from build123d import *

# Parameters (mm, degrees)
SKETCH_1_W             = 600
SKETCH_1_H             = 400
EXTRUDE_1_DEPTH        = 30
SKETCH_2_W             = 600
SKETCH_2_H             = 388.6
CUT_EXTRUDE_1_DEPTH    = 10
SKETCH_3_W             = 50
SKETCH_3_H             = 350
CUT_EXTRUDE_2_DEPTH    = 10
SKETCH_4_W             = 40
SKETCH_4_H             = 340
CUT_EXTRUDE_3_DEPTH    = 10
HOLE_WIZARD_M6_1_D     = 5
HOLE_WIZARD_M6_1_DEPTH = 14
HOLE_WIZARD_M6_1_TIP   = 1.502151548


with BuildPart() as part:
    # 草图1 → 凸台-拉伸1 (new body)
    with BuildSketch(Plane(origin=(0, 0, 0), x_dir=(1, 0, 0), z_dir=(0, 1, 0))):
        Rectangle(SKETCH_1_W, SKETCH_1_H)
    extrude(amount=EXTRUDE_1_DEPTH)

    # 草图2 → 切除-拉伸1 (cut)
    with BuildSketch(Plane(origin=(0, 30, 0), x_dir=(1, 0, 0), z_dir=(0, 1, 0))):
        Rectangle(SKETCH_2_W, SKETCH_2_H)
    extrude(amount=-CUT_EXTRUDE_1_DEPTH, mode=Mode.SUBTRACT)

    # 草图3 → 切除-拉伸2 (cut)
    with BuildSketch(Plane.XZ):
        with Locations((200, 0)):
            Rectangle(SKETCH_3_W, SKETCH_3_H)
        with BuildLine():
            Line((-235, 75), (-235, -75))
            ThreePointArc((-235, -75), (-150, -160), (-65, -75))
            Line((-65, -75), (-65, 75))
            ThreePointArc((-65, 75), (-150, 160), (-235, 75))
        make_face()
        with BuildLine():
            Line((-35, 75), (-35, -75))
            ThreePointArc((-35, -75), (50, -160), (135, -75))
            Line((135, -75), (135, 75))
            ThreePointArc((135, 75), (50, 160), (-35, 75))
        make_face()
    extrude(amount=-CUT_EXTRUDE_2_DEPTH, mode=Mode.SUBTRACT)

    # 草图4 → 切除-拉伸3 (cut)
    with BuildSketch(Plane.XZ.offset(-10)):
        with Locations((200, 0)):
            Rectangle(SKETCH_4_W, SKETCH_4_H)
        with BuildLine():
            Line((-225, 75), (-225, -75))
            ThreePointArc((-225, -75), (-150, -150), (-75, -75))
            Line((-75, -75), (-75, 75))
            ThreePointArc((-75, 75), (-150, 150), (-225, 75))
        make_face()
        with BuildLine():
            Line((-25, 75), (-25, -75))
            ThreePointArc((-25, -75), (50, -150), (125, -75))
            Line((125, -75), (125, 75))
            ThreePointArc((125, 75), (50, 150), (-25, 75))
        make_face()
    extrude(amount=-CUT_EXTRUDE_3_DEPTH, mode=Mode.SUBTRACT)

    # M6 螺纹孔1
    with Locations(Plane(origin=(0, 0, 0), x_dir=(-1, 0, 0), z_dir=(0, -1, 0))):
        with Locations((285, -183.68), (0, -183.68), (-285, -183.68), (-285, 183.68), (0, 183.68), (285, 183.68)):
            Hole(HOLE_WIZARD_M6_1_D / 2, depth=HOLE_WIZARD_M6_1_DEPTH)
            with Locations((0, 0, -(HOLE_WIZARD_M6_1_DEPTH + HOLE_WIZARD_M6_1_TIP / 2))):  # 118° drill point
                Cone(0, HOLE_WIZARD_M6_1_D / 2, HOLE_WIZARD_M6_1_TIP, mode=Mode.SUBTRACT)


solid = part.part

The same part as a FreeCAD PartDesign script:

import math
import FreeCAD as App
import Part
import Sketcher

V = App.Vector
Q = App.Units.Quantity


def add_polygon(sketch, points):
    """Adds a closed chain of lines whose ends are joined by coincident constraints."""
    first, n = sketch.GeometryCount, len(points)
    for a, b in zip(points, points[1:] + points[:1]):
        sketch.addGeometry(Part.LineSegment(App.Vector(*a, 0), App.Vector(*b, 0)), False)
    for i in range(n):
        sketch.addConstraint(Sketcher.Constraint("Coincident", first + i, 2, first + (i + 1) % n, 1))

doc = App.newDocument("Part")
body = doc.addObject("PartDesign::Body", "Body")

sketch1 = body.newObject("Sketcher::SketchObject", "Sketch")
sketch1.AttachmentSupport = (doc.getObject("XZ_Plane"), [""])
sketch1.MapMode = "FlatFace"
add_polygon(sketch1, [(-300, -200), (-300, 200), (300, 200), (300, -200)])
sketch1.addConstraint([
    Sketcher.Constraint("Vertical", 0),
    Sketcher.Constraint("Horizontal", 1),
    Sketcher.Constraint("Vertical", 2),
    Sketcher.Constraint("Horizontal", 3),
    Sketcher.Constraint("Symmetric", 0, 2, 2, 2, -1, 1),
    Sketcher.Constraint("DistanceX", 1, 1, 1, 2, Q("600 mm")),
    Sketcher.Constraint("DistanceY", 0, 1, 0, 2, Q("400 mm")),
])
pad1 = body.newObject("PartDesign::Pad", "Pad")
pad1.Profile = sketch1
pad1.Length = 30
pad1.Reversed = True

sketch2 = body.newObject("Sketcher::SketchObject", "Sketch001")
sketch2.AttachmentSupport = (doc.getObject("XZ_Plane"), [""])
sketch2.MapMode = "FlatFace"
sketch2.AttachmentOffset = App.Placement(V(0, 0, -30), App.Rotation())
add_polygon(sketch2, [(-300, -194), (-300, 194), (300, 194), (300, -194)])
sketch2.addConstraint([
    Sketcher.Constraint("Vertical", 0),
    Sketcher.Constraint("Horizontal", 1),
    Sketcher.Constraint("Vertical", 2),
    Sketcher.Constraint("Horizontal", 3),
    Sketcher.Constraint("Symmetric", 0, 2, 2, 2, -1, 1),
    Sketcher.Constraint("DistanceX", 1, 1, 1, 2, Q("600 mm")),
    Sketcher.Constraint("DistanceY", 0, 1, 0, 2, Q("388.6 mm")),
])
pocket1 = body.newObject("PartDesign::Pocket", "Pocket")
pocket1.Profile = sketch2
pocket1.Length = 10
pocket1.Reversed = True

sketch3 = body.newObject("Sketcher::SketchObject", "Sketch002")
sketch3.AttachmentSupport = (doc.getObject("XZ_Plane"), [""])
sketch3.MapMode = "FlatFace"
add_polygon(sketch3, [(175, 175), (175, -175), (225, -175), (225, 175)])
sketch3.addGeometry(Part.LineSegment(V(-235, 75, 0), V(-235, -75, 0)), False)
sketch3.addGeometry(Part.ArcOfCircle(Part.Circle(V(-150, -75, 0), V(0, 0, 1), 85), math.radians(180), math.radians(360)), False)
sketch3.addGeometry(Part.LineSegment(V(-65, -75, 0), V(-65, 75, 0)), False)
sketch3.addGeometry(Part.ArcOfCircle(Part.Circle(V(-150, 75, 0), V(0, 0, 1), 85), math.radians(0), math.radians(180)), False)
sketch3.addGeometry(Part.LineSegment(V(-35, 75, 0), V(-35, -75, 0)), False)
sketch3.addGeometry(Part.ArcOfCircle(Part.Circle(V(50, -75, 0), V(0, 0, 1), 85), math.radians(180), math.radians(360)), False)
sketch3.addGeometry(Part.LineSegment(V(135, -75, 0), V(135, 75, 0)), False)
sketch3.addGeometry(Part.ArcOfCircle(Part.Circle(V(50, 75, 0), V(0, 0, 1), 85), math.radians(0), math.radians(180)), False)
sketch3.addConstraint([
    Sketcher.Constraint("Tangent", 4, 2, 5, 1),
    Sketcher.Constraint("Tangent", 5, 2, 6, 1),
    Sketcher.Constraint("Tangent", 6, 2, 7, 1),
    Sketcher.Constraint("Tangent", 7, 2, 4, 1),
    Sketcher.Constraint("Tangent", 8, 2, 9, 1),
    Sketcher.Constraint("Tangent", 9, 2, 10, 1),
    Sketcher.Constraint("Tangent", 10, 2, 11, 1),
    Sketcher.Constraint("Tangent", 11, 2, 8, 1),
    Sketcher.Constraint("Vertical", 0),
    Sketcher.Constraint("Horizontal", 1),
    Sketcher.Constraint("Vertical", 2),
    Sketcher.Constraint("Horizontal", 3),
    Sketcher.Constraint("Vertical", 4),
    Sketcher.Constraint("Vertical", 6),
    Sketcher.Constraint("Vertical", 8),
    Sketcher.Constraint("Vertical", 10),
    Sketcher.Constraint("Equal", 7, 9),
    Sketcher.Constraint("Horizontal", 5, 3, 9, 3),
    Sketcher.Constraint("Horizontal", 7, 3, 11, 3),
    Sketcher.Constraint("Radius", 5, Q("85 mm")),
    Sketcher.Constraint("DistanceX", 1, 1, 1, 2, Q("50 mm")),
    Sketcher.Constraint("DistanceY", 0, 2, 0, 1, Q("350 mm")),
    Sketcher.Constraint("DistanceY", 4, 2, 4, 1, Q("150 mm")),
    Sketcher.Constraint("DistanceX", 5, 3, -1, 1, Q("150 mm")),
    Sketcher.Constraint("DistanceY", 5, 3, -1, 1, Q("75 mm")),
    Sketcher.Constraint("DistanceX", -1, 1, 9, 3, Q("50 mm")),
    Sketcher.Constraint("DistanceX", -1, 1, 0, 2, Q("175 mm")),
    Sketcher.Constraint("DistanceY", 0, 2, -1, 1, Q("175 mm")),
])
pocket2 = body.newObject("PartDesign::Pocket", "Pocket001")
pocket2.Profile = sketch3
pocket2.Length = 10

sketch4 = body.newObject("Sketcher::SketchObject", "Sketch003")
sketch4.AttachmentSupport = (doc.getObject("XZ_Plane"), [""])
sketch4.MapMode = "FlatFace"
sketch4.AttachmentOffset = App.Placement(V(0, 0, -10), App.Rotation())
add_polygon(sketch4, [(180, 170), (180, -170), (220, -170), (220, 170)])
sketch4.addGeometry(Part.LineSegment(V(-225, 75, 0), V(-225, -75, 0)), False)
sketch4.addGeometry(Part.ArcOfCircle(Part.Circle(V(-150, -75, 0), V(0, 0, 1), 75), math.radians(180), math.radians(360)), False)
sketch4.addGeometry(Part.LineSegment(V(-75, -75, 0), V(-75, 75, 0)), False)
sketch4.addGeometry(Part.ArcOfCircle(Part.Circle(V(-150, 75, 0), V(0, 0, 1), 75), math.radians(0), math.radians(180)), False)
sketch4.addGeometry(Part.LineSegment(V(-25, 75, 0), V(-25, -75, 0)), False)
sketch4.addGeometry(Part.ArcOfCircle(Part.Circle(V(50, -75, 0), V(0, 0, 1), 75), math.radians(180), math.radians(360)), False)
sketch4.addGeometry(Part.LineSegment(V(125, -75, 0), V(125, 75, 0)), False)
sketch4.addGeometry(Part.ArcOfCircle(Part.Circle(V(50, 75, 0), V(0, 0, 1), 75), math.radians(0), math.radians(180)), False)
sketch4.addConstraint([
    Sketcher.Constraint("Tangent", 4, 2, 5, 1),
    Sketcher.Constraint("Tangent", 5, 2, 6, 1),
    Sketcher.Constraint("Tangent", 6, 2, 7, 1),
    Sketcher.Constraint("Tangent", 7, 2, 4, 1),
    Sketcher.Constraint("Tangent", 8, 2, 9, 1),
    Sketcher.Constraint("Tangent", 9, 2, 10, 1),
    Sketcher.Constraint("Tangent", 10, 2, 11, 1),
    Sketcher.Constraint("Tangent", 11, 2, 8, 1),
    Sketcher.Constraint("Vertical", 0),
    Sketcher.Constraint("Horizontal", 1),
    Sketcher.Constraint("Vertical", 2),
    Sketcher.Constraint("Horizontal", 3),
    Sketcher.Constraint("Vertical", 4),
    Sketcher.Constraint("Vertical", 6),
    Sketcher.Constraint("Vertical", 8),
    Sketcher.Constraint("Vertical", 10),
    Sketcher.Constraint("Equal", 7, 9),
    Sketcher.Constraint("Horizontal", 5, 3, 9, 3),
    Sketcher.Constraint("Horizontal", 7, 3, 11, 3),
    Sketcher.Constraint("Radius", 5, Q("75 mm")),
    Sketcher.Constraint("DistanceX", 1, 1, 1, 2, Q("40 mm")),
    Sketcher.Constraint("DistanceY", 0, 2, 0, 1, Q("340 mm")),
    Sketcher.Constraint("DistanceY", 4, 2, 4, 1, Q("150 mm")),
    Sketcher.Constraint("DistanceX", 5, 3, -1, 1, Q("150 mm")),
    Sketcher.Constraint("DistanceY", 5, 3, -1, 1, Q("75 mm")),
    Sketcher.Constraint("DistanceX", -1, 1, 9, 3, Q("50 mm")),
    Sketcher.Constraint("DistanceX", -1, 1, 0, 2, Q("180 mm")),
    Sketcher.Constraint("DistanceY", 0, 2, -1, 1, Q("170 mm")),
])
pocket3 = body.newObject("PartDesign::Pocket", "Pocket002")
pocket3.Profile = sketch4
pocket3.Length = 10

sketch5 = body.newObject("Sketcher::SketchObject", "Sketch004")
sketch5.AttachmentSupport = (doc.getObject("XZ_Plane"), [""])
sketch5.MapMode = "FlatFace"
sketch5.addGeometry([
    Part.Circle(V(-285, 183.7, 0), V(0, 0, 1), 2.5),
    Part.Circle(V(0, 183.7, 0), V(0, 0, 1), 2.5),
    Part.Circle(V(285, 183.7, 0), V(0, 0, 1), 2.5),
    Part.Circle(V(285, -183.7, 0), V(0, 0, 1), 2.5),
    Part.Circle(V(0, -183.7, 0), V(0, 0, 1), 2.5),
    Part.Circle(V(-285, -183.7, 0), V(0, 0, 1), 2.5),
], False)
sketch5.addConstraint([
    Sketcher.Constraint("Equal", 0, 1),
    Sketcher.Constraint("Equal", 1, 2),
    Sketcher.Constraint("Equal", 2, 3),
    Sketcher.Constraint("Equal", 3, 4),
    Sketcher.Constraint("Equal", 4, 5),
    Sketcher.Constraint("Symmetric", 0, 3, 3, 3, -1, 1),
    Sketcher.Constraint("Symmetric", 1, 3, 4, 3, -1, 1),
    Sketcher.Constraint("Symmetric", 2, 3, 5, 3, -1, 1),
    Sketcher.Constraint("Symmetric", 0, 3, 2, 3, -2),
    Sketcher.Constraint("PointOnObject", 1, 3, -2),
    Sketcher.Constraint("Horizontal", 0, 3, 1, 3),
    Sketcher.Constraint("Diameter", 0, Q("5 mm")),
    Sketcher.Constraint("DistanceX", 0, 3, -1, 1, Q("285 mm")),
    Sketcher.Constraint("DistanceY", -1, 1, 0, 3, Q("183.68 mm")),
])
doc.recompute()
hole = body.newObject("PartDesign::Hole", "Hole")
hole.Profile = sketch5
hole.ThreadType = "None"
hole.Diameter = 5
hole.DepthType = "Dimension"
hole.Depth = 14
hole.DrillPoint = "Angled"
hole.DrillPointAngle = 118

doc.recompute()
